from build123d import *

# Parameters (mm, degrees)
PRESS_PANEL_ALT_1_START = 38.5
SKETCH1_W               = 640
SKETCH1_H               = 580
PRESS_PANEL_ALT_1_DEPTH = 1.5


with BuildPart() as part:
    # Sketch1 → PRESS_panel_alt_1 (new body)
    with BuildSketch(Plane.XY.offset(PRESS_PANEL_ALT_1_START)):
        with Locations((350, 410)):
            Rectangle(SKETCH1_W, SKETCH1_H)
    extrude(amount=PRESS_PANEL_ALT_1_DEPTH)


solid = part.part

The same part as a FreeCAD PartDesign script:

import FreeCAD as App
import Part
import Sketcher

V = App.Vector
Q = App.Units.Quantity

doc = App.newDocument("Part")
params = doc.addObject("Spreadsheet::Sheet", "Params")
for row, (alias, value) in enumerate([
    ("sketch1_width", "640 mm"),
    ("sketch1_height", "580 mm"),
    ("pad1_length", "1.5 mm"),
], start=1):
    params.set(f"A{row}", alias)
    params.set(f"B{row}", "=" + value)
    params.setAlias(f"B{row}", alias)

body = doc.addObject("PartDesign::Body", "Body")

sketch1 = body.newObject("Sketcher::SketchObject", "Sketch")
sketch1.AttachmentSupport = (doc.getObject("XY_Plane"), [""])
sketch1.MapMode = "FlatFace"
sketch1.AttachmentOffset = App.Placement(V(0, 0, 38.5), App.Rotation())
sketch1.addGeometry([
    Part.LineSegment(V(30, 700, 0), V(30, 120, 0)),
    Part.LineSegment(V(30, 120, 0), V(670, 120, 0)),
    Part.LineSegment(V(670, 120, 0), V(670, 700, 0)),
    Part.LineSegment(V(670, 700, 0), V(30, 700, 0)),
], False)
sketch1.addConstraint([
    Sketcher.Constraint("Coincident", 0, 2, 1, 1),
    Sketcher.Constraint("Coincident", 1, 2, 2, 1),
    Sketcher.Constraint("Coincident", 2, 2, 3, 1),
    Sketcher.Constraint("Coincident", 3, 2, 0, 1),
    Sketcher.Constraint("Vertical", 0),
    Sketcher.Constraint("Horizontal", 1),
    Sketcher.Constraint("Vertical", 2),
    Sketcher.Constraint("Horizontal", 3),
    Sketcher.Constraint("DistanceX", 1, 1, 1, 2, Q("640 mm")),
    Sketcher.Constraint("DistanceY", 0, 2, 0, 1, Q("580 mm")),
    Sketcher.Constraint("DistanceX", -1, 1, 0, 2, Q("30 mm")),
    Sketcher.Constraint("DistanceY", -1, 1, 0, 2, Q("120 mm")),
])
sketch1.setExpression("Constraints[8]", "Params.sketch1_width")
sketch1.setExpression("Constraints[9]", "Params.sketch1_height")
pad1 = body.newObject("PartDesign::Pad", "Pad")
pad1.Profile = sketch1
pad1.setExpression("Length", "Params.pad1_length")

doc.recompute()
